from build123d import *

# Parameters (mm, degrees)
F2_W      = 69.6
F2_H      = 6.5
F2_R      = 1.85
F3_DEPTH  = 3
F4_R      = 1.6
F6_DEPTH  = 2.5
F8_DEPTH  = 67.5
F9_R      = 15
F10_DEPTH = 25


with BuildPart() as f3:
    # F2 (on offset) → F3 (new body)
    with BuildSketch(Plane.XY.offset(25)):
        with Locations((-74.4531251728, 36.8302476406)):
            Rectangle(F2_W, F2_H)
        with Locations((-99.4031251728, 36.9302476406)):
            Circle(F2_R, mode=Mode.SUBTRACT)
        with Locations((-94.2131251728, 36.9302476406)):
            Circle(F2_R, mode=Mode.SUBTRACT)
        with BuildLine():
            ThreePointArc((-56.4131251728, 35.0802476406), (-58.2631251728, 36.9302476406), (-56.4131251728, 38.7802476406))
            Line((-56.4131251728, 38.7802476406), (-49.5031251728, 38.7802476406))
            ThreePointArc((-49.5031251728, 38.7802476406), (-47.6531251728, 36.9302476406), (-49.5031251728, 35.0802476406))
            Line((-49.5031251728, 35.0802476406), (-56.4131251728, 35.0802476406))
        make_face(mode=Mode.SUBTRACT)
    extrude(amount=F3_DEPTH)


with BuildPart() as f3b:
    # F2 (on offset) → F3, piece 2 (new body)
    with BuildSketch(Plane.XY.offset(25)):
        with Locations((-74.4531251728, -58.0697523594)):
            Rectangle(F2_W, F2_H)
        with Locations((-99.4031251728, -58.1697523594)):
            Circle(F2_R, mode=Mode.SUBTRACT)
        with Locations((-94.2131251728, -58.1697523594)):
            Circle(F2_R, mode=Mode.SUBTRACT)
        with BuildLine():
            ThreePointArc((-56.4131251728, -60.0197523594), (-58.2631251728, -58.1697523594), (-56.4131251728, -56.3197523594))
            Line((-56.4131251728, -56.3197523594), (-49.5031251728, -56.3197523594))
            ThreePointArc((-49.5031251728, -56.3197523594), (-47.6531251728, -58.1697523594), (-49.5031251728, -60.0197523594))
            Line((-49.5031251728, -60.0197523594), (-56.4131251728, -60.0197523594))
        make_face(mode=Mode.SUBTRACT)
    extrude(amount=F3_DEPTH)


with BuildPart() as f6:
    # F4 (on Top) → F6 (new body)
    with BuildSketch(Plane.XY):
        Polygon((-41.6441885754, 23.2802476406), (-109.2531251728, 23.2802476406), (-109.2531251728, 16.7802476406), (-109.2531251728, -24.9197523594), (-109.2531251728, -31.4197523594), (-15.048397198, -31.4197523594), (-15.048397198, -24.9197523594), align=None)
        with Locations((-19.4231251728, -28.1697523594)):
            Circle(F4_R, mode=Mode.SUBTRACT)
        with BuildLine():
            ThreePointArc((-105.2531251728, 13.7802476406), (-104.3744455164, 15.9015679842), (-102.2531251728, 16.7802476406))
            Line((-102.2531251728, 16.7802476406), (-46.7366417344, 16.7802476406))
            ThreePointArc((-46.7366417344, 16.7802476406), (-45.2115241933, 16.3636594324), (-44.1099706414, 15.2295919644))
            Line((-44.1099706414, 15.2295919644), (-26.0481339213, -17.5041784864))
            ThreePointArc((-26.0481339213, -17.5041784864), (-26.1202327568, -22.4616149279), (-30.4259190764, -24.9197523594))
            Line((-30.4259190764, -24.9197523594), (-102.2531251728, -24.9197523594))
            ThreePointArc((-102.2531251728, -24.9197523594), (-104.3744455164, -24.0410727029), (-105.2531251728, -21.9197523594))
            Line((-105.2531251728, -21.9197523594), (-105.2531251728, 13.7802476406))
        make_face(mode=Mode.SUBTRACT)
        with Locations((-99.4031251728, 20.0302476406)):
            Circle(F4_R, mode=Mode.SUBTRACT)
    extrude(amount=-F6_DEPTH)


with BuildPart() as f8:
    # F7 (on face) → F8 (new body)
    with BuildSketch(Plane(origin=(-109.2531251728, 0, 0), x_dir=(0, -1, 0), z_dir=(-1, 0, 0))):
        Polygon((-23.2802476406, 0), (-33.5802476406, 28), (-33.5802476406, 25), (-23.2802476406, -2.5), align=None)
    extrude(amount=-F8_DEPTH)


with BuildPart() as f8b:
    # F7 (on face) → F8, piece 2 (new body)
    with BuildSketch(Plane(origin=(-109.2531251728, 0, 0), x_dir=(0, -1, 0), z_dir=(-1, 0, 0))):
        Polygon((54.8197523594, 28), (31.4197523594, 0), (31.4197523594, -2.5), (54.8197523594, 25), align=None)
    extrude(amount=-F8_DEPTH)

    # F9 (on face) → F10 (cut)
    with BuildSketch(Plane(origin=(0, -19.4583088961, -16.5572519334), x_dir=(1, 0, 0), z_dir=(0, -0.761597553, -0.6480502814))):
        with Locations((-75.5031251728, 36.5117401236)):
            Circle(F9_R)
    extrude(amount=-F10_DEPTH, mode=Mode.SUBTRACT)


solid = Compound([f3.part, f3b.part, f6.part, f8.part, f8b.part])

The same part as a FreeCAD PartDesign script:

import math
import FreeCAD as App
import Part
import Sketcher
Q = App.Units.Quantity

doc = App.newDocument("Part")
body = doc.addObject("PartDesign::Body", "Body")

sketch1 = body.newObject("Sketcher::SketchObject", "Sketch")
sketch1.AttachmentSupport = (doc.getObject("XY_Plane"), [""])
sketch1.MapMode = "FlatFace"
sketch1.AttachmentOffset = App.Placement(App.Vector(0, 0, 25), App.Rotation())
sketch1.addGeometry([
    Part.LineSegment(App.Vector(-109.3, 40.1, 0), App.Vector(-109.3, 33.6, 0)),
    Part.LineSegment(App.Vector(-109.3, 33.6, 0), App.Vector(-39.7, 33.6, 0)),
    Part.LineSegment(App.Vector(-39.7, 33.6, 0), App.Vector(-39.7, 40.1, 0)),
    Part.LineSegment(App.Vector(-39.7, 40.1, 0), App.Vector(-109.3, 40.1, 0)),
    Part.Circle(App.Vector(-99.4, 36.9, 0), App.Vector(0, 0, 1), 1.9),
    Part.Circle(App.Vector(-94.2, 36.9, 0), App.Vector(0, 0, 1), 1.9),
    Part.LineSegment(App.Vector(-49.5, 35.1, 0), App.Vector(-56.4, 35.1, 0)),
    Part.ArcOfCircle(Part.Circle(App.Vector(-56.4, 36.9, 0), App.Vector(0, 0, 1), 1.9), math.radians(90), math.radians(270)),
    Part.LineSegment(App.Vector(-56.4, 38.8, 0), App.Vector(-49.5, 38.8, 0)),
    Part.ArcOfCircle(Part.Circle(App.Vector(-49.5, 36.9, 0), App.Vector(0, 0, 1), 1.9), math.radians(-90), math.radians(90)),
], False)
sketch1.addConstraint([
    Sketcher.Constraint("Coincident", 0, 2, 1, 1),
    Sketcher.Constraint("Coincident", 1, 2, 2, 1),
    Sketcher.Constraint("Coincident", 2, 2, 3, 1),
    Sketcher.Constraint("Coincident", 3, 2, 0, 1),
    Sketcher.Constraint("Tangent", 6, 2, 7, 2),
    Sketcher.Constraint("Tangent", 7, 1, 8, 1),
    Sketcher.Constraint("Tangent", 8, 2, 9, 2),
    Sketcher.Constraint("Tangent", 9, 1, 6, 1),
    Sketcher.Constraint("Vertical", 0),
    Sketcher.Constraint("Horizontal", 1),
    Sketcher.Constraint("Vertical", 2),
    Sketcher.Constraint("Horizontal", 3),
    Sketcher.Constraint("Horizontal", 6),
    Sketcher.Constraint("Horizontal", 8),
    Sketcher.Constraint("Equal", 4, 5),
    Sketcher.Constraint("Equal", 5, 7),
    Sketcher.Constraint("Horizontal", 4, 3, 5, 3),
    Sketcher.Constraint("Horizontal", 5, 3, 7, 3),
    Sketcher.Constraint("Diameter", 4, Q("3.7 mm")),
    Sketcher.Constraint("DistanceX", 1, 1, 1, 2, Q("69.6 mm")),
    Sketcher.Constraint("DistanceY", 0, 2, 0, 1, Q("6.5 mm")),
    Sketcher.Constraint("DistanceY", 6, 2, 2, 2, Q("5 mm")),
    Sketcher.Constraint("DistanceX", 6, 2, 6, 1, Q("6.91 mm")),
    Sketcher.Constraint("DistanceX", 5, 3, 7, 3, Q("37.8 mm")),
    Sketcher.Constraint("DistanceX", 4, 3, 9, 3, Q("49.9 mm")),
    Sketcher.Constraint("DistanceX", 0, 2, 4, 3, Q("9.85 mm")),
    Sketcher.Constraint("DistanceX", 4, 3, -1, 1, Q("99.403125 mm")),
    Sketcher.Constraint("DistanceY", -1, 1, 4, 3, Q("36.930248 mm")),
])
pad1 = body.newObject("PartDesign::Pad", "Pad")
pad1.Profile = sketch1
pad1.Length = 3
body2 = doc.addObject("PartDesign::Body", "Body001")

sketch2 = body2.newObject("Sketcher::SketchObject", "Sketch001")
sketch2.AttachmentSupport = (doc.getObject("XY_Plane001"), [""])
sketch2.MapMode = "FlatFace"
sketch2.AttachmentOffset = App.Placement(App.Vector(0, 0, 25), App.Rotation())
sketch2.addGeometry([
    Part.LineSegment(App.Vector(-109.3, -54.8, 0), App.Vector(-109.3, -61.3, 0)),
    Part.LineSegment(App.Vector(-109.3, -61.3, 0), App.Vector(-39.7, -61.3, 0)),
    Part.LineSegment(App.Vector(-39.7, -61.3, 0), App.Vector(-39.7, -54.8, 0)),
    Part.LineSegment(App.Vector(-39.7, -54.8, 0), App.Vector(-109.3, -54.8, 0)),
    Part.Circle(App.Vector(-99.4, -58.2, 0), App.Vector(0, 0, 1), 1.9),
    Part.Circle(App.Vector(-94.2, -58.2, 0), App.Vector(0, 0, 1), 1.9),
    Part.LineSegment(App.Vector(-49.5, -60, 0), App.Vector(-56.4, -60, 0)),
    Part.ArcOfCircle(Part.Circle(App.Vector(-56.4, -58.2, 0), App.Vector(0, 0, 1), 1.9), math.radians(90), math.radians(270)),
    Part.LineSegment(App.Vector(-56.4, -56.3, 0), App.Vector(-49.5, -56.3, 0)),
    Part.ArcOfCircle(Part.Circle(App.Vector(-49.5, -58.2, 0), App.Vector(0, 0, 1), 1.9), math.radians(-90), math.radians(90)),
], False)
sketch2.addConstraint([
    Sketcher.Constraint("Coincident", 0, 2, 1, 1),
    Sketcher.Constraint("Coincident", 1, 2, 2, 1),
    Sketcher.Constraint("Coincident", 2, 2, 3, 1),
    Sketcher.Constraint("Coincident", 3, 2, 0, 1),
    Sketcher.Constraint("Tangent", 6, 2, 7, 2),
    Sketcher.Constraint("Tangent", 7, 1, 8, 1),
    Sketcher.Constraint("Tangent", 8, 2, 9, 2),
    Sketcher.Constraint("Tangent", 9, 1, 6, 1),
    Sketcher.Constraint("Vertical", 0),
    Sketcher.Constraint("Horizontal", 1),
    Sketcher.Constraint("Vertical", 2),
    Sketcher.Constraint("Horizontal", 3),
    Sketcher.Constraint("Horizontal", 6),
    Sketcher.Constraint("Horizontal", 8),
    Sketcher.Constraint("Equal", 4, 5),
    Sketcher.Constraint("Equal", 5, 7),
    Sketcher.Constraint("Horizontal", 4, 3, 5, 3),
    Sketcher.Constraint("Horizontal", 5, 3, 7, 3),
    Sketcher.Constraint("Diameter", 4, Q("3.7 mm")),
    Sketcher.Constraint("DistanceX", 1, 1, 1, 2, Q("69.6 mm")),
    Sketcher.Constraint("DistanceY", 0, 2, 0, 1, Q("6.5 mm")),
    Sketcher.Constraint("DistanceY", 1, 2, 7, 1, Q("5 mm")),
    Sketcher.Constraint("DistanceX", 6, 2, 6, 1, Q("6.91 mm")),
    Sketcher.Constraint("DistanceX", 5, 3, 7, 3, Q("37.8 mm")),
    Sketcher.Constraint("DistanceX", 4, 3, 9, 3, Q("49.9 mm")),
    Sketcher.Constraint("DistanceX", 0, 2, 4, 3, Q("9.85 mm")),
    Sketcher.Constraint("DistanceX", 4, 3, -1, 1, Q("99.403125 mm")),
    Sketcher.Constraint("DistanceY", 4, 3, -1, 1, Q("58.169752 mm")),
])
pad2 = body2.newObject("PartDesign::Pad", "Pad001")
pad2.Profile = sketch2
pad2.Length = 3
body3 = doc.addObject("PartDesign::Body", "Body002")

sketch3 = body3.newObject("Sketcher::SketchObject", "Sketch002")
sketch3.AttachmentSupport = (doc.getObject("XY_Plane002"), [""])
sketch3.MapMode = "FlatFace"
sketch3.addGeometry([
    Part.LineSegment(App.Vector(-41.6, 23.3, 0), App.Vector(-109.3, 23.3, 0)),
    Part.LineSegment(App.Vector(-109.3, 23.3, 0), App.Vector(-109.3, -31.4, 0)),
    Part.LineSegment(App.Vector(-109.3, -31.4, 0), App.Vector(-15, -31.4, 0)),
    Part.LineSegment(App.Vector(-15, -31.4, 0), App.Vector(-15, -24.9, 0)),
    Part.LineSegment(App.Vector(-15, -24.9, 0), App.Vector(-41.6, 23.3, 0)),
    Part.Circle(App.Vector(-19.4, -28.2, 0), App.Vector(0, 0, 1), 1.6),
    Part.LineSegment(App.Vector(-105.3, -21.9, 0), App.Vector(-105.3, 13.8, 0)),
    Part.ArcOfCircle(Part.Circle(App.Vector(-102.3, 13.8, 0), App.Vector(0, 0, 1), 3), math.radians(90), math.radians(180)),
    Part.LineSegment(App.Vector(-102.3, 16.8, 0), App.Vector(-46.7, 16.8, 0)),
    Part.ArcOfCircle(Part.Circle(App.Vector(-46.7, 13.8, 0), App.Vector(0, 0, 1), 3), math.radians(29), math.radians(90)),
    Part.LineSegment(App.Vector(-44.1, 15.2, 0), App.Vector(-26, -17.5, 0)),
    Part.ArcOfCircle(Part.Circle(App.Vector(-30.4, -19.9, 0), App.Vector(0, 0, 1), 5), math.radians(-90), math.radians(29)),
    Part.LineSegment(App.Vector(-30.4, -24.9, 0), App.Vector(-102.3, -24.9, 0)),
    Part.ArcOfCircle(Part.Circle(App.Vector(-102.3, -21.9, 0), App.Vector(0, 0, 1), 3), math.radians(180), math.radians(270)),
    Part.Circle(App.Vector(-99.4, 20, 0), App.Vector(0, 0, 1), 1.6),
], False)
sketch3.addConstraint([
    Sketcher.Constraint("Coincident", 0, 2, 1, 1),
    Sketcher.Constraint("Coincident", 1, 2, 2, 1),
    Sketcher.Constraint("Coincident", 2, 2, 3, 1),
    Sketcher.Constraint("Coincident", 3, 2, 4, 1),
    Sketcher.Constraint("Coincident", 4, 2, 0, 1),
    Sketcher.Constraint("Tangent", 6, 2, 7, 2),
    Sketcher.Constraint("Tangent", 7, 1, 8, 1),
    Sketcher.Constraint("Tangent", 8, 2, 9, 2),
    Sketcher.Constraint("Tangent", 9, 1, 10, 1),
    Sketcher.Constraint("Tangent", 10, 2, 11, 2),
    Sketcher.Constraint("Tangent", 11, 1, 12, 1),
    Sketcher.Constraint("Tangent", 12, 2, 13, 2),
    Sketcher.Constraint("Tangent", 13, 1, 6, 1),
    Sketcher.Constraint("Horizontal", 0),
    Sketcher.Constraint("Vertical", 1),
    Sketcher.Constraint("Horizontal", 2),
    Sketcher.Constraint("Vertical", 3),
    Sketcher.Constraint("Vertical", 6),
    Sketcher.Constraint("Horizontal", 8),
    Sketcher.Constraint("Horizontal", 12),
    Sketcher.Constraint("Equal", 7, 9),
    Sketcher.Constraint("Equal", 9, 13),
    Sketcher.Constraint("Equal", 5, 14),
    Sketcher.Constraint("Parallel", 4, 10),
    Sketcher.Constraint("Horizontal", 3, 2, 11, 1),
    Sketcher.Constraint("Radius", 7, Q("3 mm")),
    Sketcher.Constraint("Radius", 11, Q("5 mm")),
    Sketcher.Constraint("Diameter", 5, Q("3.2 mm")),
    Sketcher.Constraint("DistanceY", 1, 2, 1, 1, Q("54.7 mm")),
    Sketcher.Constraint("DistanceY", 3, 1, 3, 2, Q("6.5 mm")),
    Sketcher.Constraint("DistanceY", 6, 1, 6, 2, Q("35.7 mm")),
    Sketcher.Constraint("DistanceX", 0, 2, 7, 3, Q("7 mm")),
    Sketcher.Constraint("DistanceY", 5, 3, 14, 3, Q("48.2 mm")),
    Sketcher.Constraint("DistanceX", 7, 3, 5, 3, Q("82.83 mm")),
    Sketcher.Constraint("DistanceY", 5, 3, 7, 3, Q("41.95 mm")),
    Sketcher.Constraint("DistanceX", 7, 3, 14, 3, Q("2.85 mm")),
    Sketcher.Constraint("Distance", 4, Q("55.050669 mm")),
    Sketcher.Constraint("DistanceX", 0, 2, 0, 1, Q("67.608937 mm")),
    Sketcher.Constraint("DistanceX", 8, 1, 8, 2, Q("55.516483 mm")),
    Sketcher.Constraint("DistanceX", 9, 3, -1, 1, Q("46.736642 mm")),
    Sketcher.Constraint("DistanceY", -1, 1, 9, 1, Q("15.229592 mm")),
])
pad3 = body3.newObject("PartDesign::Pad", "Pad002")
pad3.Profile = sketch3
pad3.Length = 2.5
pad3.Reversed = True
body4 = doc.addObject("PartDesign::Body", "Body003")

sketch4 = body4.newObject("Sketcher::SketchObject", "Sketch003")
sketch4.AttachmentSupport = (doc.getObject("YZ_Plane003"), [""])
sketch4.MapMode = "FlatFace"
sketch4.AttachmentOffset = App.Placement(App.Vector(0, 0, -109.253125), App.Rotation())
sketch4.addGeometry([
    Part.LineSegment(App.Vector(23.3, 0, 0), App.Vector(33.6, 28, 0)),
    Part.LineSegment(App.Vector(33.6, 28, 0), App.Vector(33.6, 25, 0)),
    Part.LineSegment(App.Vector(33.6, 25, 0), App.Vector(23.3, -2.5, 0)),
    Part.LineSegment(App.Vector(23.3, -2.5, 0), App.Vector(23.3, 0, 0)),
], False)
sketch4.addConstraint([
    Sketcher.Constraint("Coincident", 0, 2, 1, 1),
    Sketcher.Constraint("Coincident", 1, 2, 2, 1),
    Sketcher.Constraint("Coincident", 2, 2, 3, 1),
    Sketcher.Constraint("Coincident", 3, 2, 0, 1),
    Sketcher.Constraint("Vertical", 1),
    Sketcher.Constraint("Vertical", 3),
    Sketcher.Constraint("PointOnObject", 3, 2, -1),
    Sketcher.Constraint("DistanceY", 1, 2, 1, 1, Q("3 mm")),
    Sketcher.Constraint("DistanceY", 3, 1, 3, 2, Q("2.5 mm")),
    Sketcher.Constraint("DistanceY", -1, 1, 0, 2, Q("28 mm")),
    Sketcher.Constraint("DistanceX", 2, 2, 1, 2, Q("10.3 mm")),
    Sketcher.Constraint("DistanceX", -1, 1, 0, 2, Q("33.580248 mm")),
])
pad4 = body4.newObject("PartDesign::Pad", "Pad003")
pad4.Profile = sketch4
pad4.Length = 67.5
body5 = doc.addObject("PartDesign::Body", "Body004")

sketch5 = body5.newObject("Sketcher::SketchObject", "Sketch004")
sketch5.AttachmentSupport = (doc.getObject("YZ_Plane004"), [""])
sketch5.MapMode = "FlatFace"
sketch5.AttachmentOffset = App.Placement(App.Vector(0, 0, -109.253125), App.Rotation())
sketch5.addGeometry([
    Part.LineSegment(App.Vector(-54.8, 28, 0), App.Vector(-31.4, 0, 0)),
    Part.LineSegment(App.Vector(-31.4, 0, 0), App.Vector(-31.4, -2.5, 0)),
    Part.LineSegment(App.Vector(-31.4, -2.5, 0), App.Vector(-54.8, 25, 0)),
    Part.LineSegment(App.Vector(-54.8, 25, 0), App.Vector(-54.8, 28, 0)),
], False)
sketch5.addConstraint([
    Sketcher.Constraint("Coincident", 0, 2, 1, 1),
    Sketcher.Constraint("Coincident", 1, 2, 2, 1),
    Sketcher.Constraint("Coincident", 2, 2, 3, 1),
    Sketcher.Constraint("Coincident", 3, 2, 0, 1),
    Sketcher.Constraint("Vertical", 1),
    Sketcher.Constraint("Vertical", 3),
    Sketcher.Constraint("PointOnObject", 0, 2, -1),
    Sketcher.Constraint("DistanceY", 3, 1, 3, 2, Q("3 mm")),
    Sketcher.Constraint("DistanceY", 1, 2, 1, 1, Q("2.5 mm")),
    Sketcher.Constraint("DistanceY", -1, 1, 2, 2, Q("25 mm")),
    Sketcher.Constraint("DistanceX", 2, 2, 0, 2, Q("23.4 mm")),
    Sketcher.Constraint("DistanceX", 0, 2, -1, 1, Q("31.419752 mm")),
])
pad5 = body5.newObject("PartDesign::Pad", "Pad004")
pad5.Profile = sketch5
pad5.Length = 67.5

sketch6 = body5.newObject("Sketcher::SketchObject", "Sketch005")
sketch6.Placement = App.Placement(App.Vector(0, -19.458309, -16.557252), App.Rotation(App.Vector(1, 0, 0), App.Vector(0, -0.648050281, 0.761597553), App.Vector(0, -0.761597553, -0.648050281), "ZXY"))
sketch6.addGeometry(Part.Circle(App.Vector(-76, 37, 0), App.Vector(0, 0, 1), 15), False)
sketch6.addConstraint([
    Sketcher.Constraint("Diameter", 0, Q("30 mm")),
    Sketcher.Constraint("DistanceY", -1, 1, 0, 3, Q("36.51174 mm")),
    Sketcher.Constraint("DistanceX", 0, 3, -1, 1, Q("75.503125 mm")),
])
pocket1 = body5.newObject("PartDesign::Pocket", "Pocket")
pocket1.Profile = sketch6
pocket1.Length = 25

doc.recompute()
